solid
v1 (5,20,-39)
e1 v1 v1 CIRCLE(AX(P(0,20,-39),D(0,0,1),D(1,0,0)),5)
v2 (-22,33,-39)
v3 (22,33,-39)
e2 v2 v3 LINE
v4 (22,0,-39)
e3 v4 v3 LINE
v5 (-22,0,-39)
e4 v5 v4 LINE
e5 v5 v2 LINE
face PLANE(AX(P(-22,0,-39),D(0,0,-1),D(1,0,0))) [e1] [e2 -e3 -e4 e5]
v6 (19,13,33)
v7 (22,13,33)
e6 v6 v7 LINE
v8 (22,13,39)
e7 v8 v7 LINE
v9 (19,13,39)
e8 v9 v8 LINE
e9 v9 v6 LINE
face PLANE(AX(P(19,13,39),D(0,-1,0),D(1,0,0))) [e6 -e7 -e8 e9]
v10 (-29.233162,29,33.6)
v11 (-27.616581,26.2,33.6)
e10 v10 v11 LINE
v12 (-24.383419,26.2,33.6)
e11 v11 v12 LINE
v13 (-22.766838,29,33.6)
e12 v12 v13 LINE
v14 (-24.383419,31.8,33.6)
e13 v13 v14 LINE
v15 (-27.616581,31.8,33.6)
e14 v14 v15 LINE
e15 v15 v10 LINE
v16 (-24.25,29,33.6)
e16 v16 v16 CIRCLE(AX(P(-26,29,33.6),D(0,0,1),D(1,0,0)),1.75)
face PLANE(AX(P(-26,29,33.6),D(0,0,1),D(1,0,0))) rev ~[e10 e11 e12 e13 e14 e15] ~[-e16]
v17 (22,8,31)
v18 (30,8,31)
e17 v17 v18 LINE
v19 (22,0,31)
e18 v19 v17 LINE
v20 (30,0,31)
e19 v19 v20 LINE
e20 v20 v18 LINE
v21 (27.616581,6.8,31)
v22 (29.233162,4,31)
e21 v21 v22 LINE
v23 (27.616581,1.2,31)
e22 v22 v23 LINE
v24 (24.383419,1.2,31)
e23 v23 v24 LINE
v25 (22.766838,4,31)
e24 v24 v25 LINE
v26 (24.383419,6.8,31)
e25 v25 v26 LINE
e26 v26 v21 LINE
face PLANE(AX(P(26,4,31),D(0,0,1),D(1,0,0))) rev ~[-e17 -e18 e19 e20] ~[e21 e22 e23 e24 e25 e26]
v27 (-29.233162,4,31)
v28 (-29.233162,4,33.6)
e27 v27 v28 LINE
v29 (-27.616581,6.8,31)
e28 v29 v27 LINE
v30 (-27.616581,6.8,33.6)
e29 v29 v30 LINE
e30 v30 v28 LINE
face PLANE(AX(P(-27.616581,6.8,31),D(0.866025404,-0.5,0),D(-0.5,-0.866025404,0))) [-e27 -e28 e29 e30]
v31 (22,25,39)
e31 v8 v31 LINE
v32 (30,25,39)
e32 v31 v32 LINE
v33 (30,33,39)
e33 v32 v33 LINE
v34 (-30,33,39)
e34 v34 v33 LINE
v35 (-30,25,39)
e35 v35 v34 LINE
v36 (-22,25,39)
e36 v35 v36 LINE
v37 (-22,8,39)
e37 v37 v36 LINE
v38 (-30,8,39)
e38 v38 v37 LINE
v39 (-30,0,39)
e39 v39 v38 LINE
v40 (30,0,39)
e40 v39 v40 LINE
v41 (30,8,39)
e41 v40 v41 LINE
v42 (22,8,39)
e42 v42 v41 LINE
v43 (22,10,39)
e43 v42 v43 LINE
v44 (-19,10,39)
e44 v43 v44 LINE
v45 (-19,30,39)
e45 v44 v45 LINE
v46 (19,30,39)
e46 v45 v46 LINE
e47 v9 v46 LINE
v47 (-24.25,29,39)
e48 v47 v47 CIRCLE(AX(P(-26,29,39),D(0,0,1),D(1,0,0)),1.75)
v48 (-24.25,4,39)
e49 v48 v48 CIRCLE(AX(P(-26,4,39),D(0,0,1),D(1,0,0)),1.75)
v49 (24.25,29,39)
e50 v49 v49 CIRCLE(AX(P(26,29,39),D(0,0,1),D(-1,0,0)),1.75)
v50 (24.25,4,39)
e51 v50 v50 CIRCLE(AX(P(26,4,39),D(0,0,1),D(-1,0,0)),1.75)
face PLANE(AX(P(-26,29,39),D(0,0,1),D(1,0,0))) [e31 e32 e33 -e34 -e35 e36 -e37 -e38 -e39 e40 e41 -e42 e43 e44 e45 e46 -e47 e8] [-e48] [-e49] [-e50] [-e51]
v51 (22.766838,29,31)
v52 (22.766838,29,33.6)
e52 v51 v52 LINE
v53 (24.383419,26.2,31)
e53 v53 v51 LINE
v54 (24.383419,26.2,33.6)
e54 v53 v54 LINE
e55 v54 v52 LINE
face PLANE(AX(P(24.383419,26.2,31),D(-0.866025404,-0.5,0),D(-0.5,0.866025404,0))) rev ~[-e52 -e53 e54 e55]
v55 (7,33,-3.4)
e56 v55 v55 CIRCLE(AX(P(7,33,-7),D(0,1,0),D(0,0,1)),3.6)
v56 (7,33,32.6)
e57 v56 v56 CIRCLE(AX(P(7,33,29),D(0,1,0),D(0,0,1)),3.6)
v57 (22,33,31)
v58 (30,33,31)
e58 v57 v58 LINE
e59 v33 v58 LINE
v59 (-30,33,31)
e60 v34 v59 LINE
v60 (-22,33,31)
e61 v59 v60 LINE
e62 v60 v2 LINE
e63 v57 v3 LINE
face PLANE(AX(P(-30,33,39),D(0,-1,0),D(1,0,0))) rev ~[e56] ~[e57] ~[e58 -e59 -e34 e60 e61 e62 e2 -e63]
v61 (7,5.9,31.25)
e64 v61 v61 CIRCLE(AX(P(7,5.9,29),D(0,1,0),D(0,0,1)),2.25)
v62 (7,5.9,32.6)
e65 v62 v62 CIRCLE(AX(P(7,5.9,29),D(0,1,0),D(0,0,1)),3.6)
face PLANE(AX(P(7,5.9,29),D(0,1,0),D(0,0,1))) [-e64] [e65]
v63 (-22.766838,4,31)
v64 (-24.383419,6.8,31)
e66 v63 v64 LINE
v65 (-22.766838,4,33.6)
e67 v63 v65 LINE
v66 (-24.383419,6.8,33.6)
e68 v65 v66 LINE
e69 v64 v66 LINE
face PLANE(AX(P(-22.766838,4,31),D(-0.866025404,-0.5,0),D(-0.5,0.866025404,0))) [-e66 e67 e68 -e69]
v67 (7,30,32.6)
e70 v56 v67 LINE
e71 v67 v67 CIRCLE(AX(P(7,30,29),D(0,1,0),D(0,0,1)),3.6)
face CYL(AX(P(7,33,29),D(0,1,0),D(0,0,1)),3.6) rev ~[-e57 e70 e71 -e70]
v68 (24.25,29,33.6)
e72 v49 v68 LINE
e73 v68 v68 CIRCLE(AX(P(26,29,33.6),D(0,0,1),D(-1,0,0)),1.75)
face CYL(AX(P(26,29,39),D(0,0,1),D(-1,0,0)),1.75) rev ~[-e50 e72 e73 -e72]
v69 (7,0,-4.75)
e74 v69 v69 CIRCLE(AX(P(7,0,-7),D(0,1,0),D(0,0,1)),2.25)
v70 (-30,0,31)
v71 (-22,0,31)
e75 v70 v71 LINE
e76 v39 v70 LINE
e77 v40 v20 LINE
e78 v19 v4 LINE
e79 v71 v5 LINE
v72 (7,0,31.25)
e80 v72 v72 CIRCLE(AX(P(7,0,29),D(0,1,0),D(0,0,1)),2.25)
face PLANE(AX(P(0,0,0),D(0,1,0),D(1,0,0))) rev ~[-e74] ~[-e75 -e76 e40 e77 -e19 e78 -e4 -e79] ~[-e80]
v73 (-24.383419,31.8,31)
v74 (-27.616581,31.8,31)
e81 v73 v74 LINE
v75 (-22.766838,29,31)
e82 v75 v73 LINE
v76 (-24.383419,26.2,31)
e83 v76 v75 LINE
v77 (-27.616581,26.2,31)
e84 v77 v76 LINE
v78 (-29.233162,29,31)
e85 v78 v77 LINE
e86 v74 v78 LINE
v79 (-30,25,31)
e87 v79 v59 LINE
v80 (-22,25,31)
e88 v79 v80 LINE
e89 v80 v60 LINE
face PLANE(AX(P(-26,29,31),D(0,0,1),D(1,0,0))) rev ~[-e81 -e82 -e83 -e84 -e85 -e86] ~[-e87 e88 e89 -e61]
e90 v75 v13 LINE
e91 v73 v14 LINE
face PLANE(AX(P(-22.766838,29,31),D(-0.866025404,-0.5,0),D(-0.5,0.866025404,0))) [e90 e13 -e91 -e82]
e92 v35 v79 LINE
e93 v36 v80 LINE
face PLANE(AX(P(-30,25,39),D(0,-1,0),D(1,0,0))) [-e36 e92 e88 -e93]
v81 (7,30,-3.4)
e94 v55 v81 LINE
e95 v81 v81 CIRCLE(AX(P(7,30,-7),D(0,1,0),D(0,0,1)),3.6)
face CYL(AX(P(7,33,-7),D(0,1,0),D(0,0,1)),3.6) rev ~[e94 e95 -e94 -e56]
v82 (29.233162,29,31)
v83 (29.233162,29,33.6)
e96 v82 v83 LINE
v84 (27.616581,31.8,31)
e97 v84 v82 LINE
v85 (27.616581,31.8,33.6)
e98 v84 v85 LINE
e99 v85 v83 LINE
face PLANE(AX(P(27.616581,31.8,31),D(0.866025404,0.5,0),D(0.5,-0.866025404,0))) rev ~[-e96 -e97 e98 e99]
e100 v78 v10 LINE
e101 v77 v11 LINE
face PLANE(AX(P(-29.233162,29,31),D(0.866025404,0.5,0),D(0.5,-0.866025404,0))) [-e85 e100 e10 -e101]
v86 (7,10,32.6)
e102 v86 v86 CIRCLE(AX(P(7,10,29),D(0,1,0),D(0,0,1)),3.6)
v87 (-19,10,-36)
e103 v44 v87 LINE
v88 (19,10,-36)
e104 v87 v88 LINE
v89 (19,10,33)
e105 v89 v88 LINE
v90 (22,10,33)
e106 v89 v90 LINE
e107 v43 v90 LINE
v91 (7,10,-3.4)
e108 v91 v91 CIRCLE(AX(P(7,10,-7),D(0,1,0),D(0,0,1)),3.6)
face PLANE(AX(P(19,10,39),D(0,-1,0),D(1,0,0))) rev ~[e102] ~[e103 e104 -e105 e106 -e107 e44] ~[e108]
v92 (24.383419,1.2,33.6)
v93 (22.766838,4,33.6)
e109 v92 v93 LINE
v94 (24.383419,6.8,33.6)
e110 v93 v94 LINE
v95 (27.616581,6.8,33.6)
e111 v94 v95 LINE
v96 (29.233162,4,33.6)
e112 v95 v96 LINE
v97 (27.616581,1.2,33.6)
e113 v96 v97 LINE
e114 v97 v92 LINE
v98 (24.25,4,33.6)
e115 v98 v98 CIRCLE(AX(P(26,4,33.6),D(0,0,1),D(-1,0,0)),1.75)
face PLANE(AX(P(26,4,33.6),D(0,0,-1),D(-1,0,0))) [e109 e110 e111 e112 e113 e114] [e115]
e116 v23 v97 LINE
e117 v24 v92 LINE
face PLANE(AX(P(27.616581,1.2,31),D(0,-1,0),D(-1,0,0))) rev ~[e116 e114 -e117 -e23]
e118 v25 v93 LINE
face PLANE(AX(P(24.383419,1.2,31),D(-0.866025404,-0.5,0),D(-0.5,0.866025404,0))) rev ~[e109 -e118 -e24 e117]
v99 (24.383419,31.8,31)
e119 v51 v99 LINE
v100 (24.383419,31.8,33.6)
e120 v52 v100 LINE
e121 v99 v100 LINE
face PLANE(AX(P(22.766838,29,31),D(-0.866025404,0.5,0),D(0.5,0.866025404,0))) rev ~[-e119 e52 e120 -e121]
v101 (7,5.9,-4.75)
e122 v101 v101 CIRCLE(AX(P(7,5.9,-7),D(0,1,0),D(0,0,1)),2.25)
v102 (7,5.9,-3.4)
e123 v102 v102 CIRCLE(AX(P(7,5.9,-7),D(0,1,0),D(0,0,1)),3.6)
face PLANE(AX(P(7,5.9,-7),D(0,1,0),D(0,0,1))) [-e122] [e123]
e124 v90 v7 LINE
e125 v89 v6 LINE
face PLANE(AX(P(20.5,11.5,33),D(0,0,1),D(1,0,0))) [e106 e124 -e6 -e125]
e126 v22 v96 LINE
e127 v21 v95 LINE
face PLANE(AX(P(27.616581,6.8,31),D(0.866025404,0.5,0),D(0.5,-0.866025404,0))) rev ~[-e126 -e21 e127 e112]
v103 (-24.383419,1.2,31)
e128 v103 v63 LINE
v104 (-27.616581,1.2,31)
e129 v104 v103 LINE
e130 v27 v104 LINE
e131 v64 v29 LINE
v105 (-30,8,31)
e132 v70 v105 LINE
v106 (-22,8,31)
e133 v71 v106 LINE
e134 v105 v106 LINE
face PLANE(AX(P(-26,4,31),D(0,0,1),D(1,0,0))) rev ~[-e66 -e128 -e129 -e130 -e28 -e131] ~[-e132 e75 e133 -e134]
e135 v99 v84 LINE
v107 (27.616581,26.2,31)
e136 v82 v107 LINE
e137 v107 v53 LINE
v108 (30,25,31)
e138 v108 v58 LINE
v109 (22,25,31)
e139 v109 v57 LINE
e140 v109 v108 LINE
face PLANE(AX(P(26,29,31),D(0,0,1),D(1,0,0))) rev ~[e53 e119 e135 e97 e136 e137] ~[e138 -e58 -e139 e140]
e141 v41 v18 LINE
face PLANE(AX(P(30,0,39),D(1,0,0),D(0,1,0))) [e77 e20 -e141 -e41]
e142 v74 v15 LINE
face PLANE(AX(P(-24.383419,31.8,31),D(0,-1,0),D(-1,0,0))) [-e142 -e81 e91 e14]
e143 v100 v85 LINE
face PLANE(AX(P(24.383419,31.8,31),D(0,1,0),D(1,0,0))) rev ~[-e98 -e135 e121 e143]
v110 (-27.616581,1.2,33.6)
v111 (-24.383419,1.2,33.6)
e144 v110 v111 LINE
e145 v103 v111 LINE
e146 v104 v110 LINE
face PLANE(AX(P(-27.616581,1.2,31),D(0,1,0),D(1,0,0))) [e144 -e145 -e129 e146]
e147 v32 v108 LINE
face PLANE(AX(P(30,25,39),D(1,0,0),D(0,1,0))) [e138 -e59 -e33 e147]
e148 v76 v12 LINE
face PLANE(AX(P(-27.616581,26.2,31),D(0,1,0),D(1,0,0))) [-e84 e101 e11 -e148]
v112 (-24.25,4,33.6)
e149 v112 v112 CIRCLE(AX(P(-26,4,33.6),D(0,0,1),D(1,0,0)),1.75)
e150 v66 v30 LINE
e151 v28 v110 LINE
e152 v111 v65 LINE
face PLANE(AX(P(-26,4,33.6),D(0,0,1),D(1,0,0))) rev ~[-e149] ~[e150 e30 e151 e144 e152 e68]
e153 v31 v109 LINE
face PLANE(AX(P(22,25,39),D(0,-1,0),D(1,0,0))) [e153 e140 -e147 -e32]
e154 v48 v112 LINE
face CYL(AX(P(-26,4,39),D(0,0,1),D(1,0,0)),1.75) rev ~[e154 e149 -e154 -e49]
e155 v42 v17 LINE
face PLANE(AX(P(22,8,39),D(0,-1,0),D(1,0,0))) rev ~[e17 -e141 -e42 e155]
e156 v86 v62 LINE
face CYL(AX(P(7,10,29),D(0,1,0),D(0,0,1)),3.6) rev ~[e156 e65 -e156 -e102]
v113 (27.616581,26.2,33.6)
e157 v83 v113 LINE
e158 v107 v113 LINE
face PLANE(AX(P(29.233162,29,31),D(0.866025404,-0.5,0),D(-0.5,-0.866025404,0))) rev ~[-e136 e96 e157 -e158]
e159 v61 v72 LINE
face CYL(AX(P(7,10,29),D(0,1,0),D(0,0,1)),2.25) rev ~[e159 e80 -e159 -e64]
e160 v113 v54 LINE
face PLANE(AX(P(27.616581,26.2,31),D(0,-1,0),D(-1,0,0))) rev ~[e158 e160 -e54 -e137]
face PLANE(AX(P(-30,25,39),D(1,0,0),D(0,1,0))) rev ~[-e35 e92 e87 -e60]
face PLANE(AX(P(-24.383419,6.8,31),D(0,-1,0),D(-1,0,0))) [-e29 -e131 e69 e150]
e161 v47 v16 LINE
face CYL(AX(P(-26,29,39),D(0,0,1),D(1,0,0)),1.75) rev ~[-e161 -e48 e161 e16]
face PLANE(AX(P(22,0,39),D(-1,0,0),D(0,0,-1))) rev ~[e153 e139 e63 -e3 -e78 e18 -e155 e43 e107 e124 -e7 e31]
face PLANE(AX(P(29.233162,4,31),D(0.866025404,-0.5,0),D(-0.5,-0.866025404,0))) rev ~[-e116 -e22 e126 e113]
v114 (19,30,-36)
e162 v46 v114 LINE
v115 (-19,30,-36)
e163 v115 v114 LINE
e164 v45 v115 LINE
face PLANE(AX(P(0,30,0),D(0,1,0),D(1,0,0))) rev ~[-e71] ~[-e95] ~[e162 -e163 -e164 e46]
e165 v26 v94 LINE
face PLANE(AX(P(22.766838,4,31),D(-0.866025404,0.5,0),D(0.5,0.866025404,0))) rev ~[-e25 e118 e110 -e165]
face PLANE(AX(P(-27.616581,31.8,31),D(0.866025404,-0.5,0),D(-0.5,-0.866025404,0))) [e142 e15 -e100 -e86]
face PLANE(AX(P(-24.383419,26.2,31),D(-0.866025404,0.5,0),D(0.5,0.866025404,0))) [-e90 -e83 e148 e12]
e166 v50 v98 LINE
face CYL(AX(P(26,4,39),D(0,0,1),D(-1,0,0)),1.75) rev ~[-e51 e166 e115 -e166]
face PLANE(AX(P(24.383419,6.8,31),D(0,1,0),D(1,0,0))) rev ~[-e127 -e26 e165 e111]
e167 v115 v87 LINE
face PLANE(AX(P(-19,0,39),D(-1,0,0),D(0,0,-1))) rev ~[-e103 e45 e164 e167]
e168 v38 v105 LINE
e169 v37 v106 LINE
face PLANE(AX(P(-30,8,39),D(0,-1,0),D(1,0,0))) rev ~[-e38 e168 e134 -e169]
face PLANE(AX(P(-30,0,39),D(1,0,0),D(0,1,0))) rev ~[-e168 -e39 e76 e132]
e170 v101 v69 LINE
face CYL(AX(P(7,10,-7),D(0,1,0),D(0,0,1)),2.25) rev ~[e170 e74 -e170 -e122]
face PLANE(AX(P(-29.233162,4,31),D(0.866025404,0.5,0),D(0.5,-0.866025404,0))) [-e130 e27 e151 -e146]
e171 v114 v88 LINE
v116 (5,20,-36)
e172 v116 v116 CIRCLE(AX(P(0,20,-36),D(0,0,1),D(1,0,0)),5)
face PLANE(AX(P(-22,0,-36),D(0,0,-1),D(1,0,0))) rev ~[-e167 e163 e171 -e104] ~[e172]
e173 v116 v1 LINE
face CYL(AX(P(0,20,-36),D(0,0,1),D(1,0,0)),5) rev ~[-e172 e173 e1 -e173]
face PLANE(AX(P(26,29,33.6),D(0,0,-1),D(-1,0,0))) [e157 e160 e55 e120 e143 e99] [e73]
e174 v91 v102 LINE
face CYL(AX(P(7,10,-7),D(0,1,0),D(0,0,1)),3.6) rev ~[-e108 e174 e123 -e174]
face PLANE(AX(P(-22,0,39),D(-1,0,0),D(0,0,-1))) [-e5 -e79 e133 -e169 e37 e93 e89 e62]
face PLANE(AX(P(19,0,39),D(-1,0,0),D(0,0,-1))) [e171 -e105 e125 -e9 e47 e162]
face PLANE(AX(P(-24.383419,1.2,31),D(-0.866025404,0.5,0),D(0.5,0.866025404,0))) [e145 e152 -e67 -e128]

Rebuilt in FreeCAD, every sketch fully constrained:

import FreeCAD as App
import Part
import Sketcher

V = App.Vector
Q = App.Units.Quantity


def faces_at(feature, points):
    """Names of the faces that lie closest to the given points."""
    faces = feature.Shape.Faces
    near = lambda p: min(range(len(faces)), key=lambda i: faces[i].distToShape(Part.Vertex(*p))[0])
    return sorted({f"Face{near(p) + 1}" for p in points})

doc = App.newDocument("Part")
body = doc.addObject("PartDesign::Body", "Body")

# Sketch on XZ plane
sketch1 = body.newObject("Sketcher::SketchObject", "Sketch")
sketch1.AttachmentSupport = (doc.getObject("XZ_Plane"), [""])
sketch1.MapMode = "FlatFace"
sketch1.addGeometry(Part.LineSegment(V(-22, -39, 0), V(-22, 39, 0)), False)
sketch1.addGeometry(Part.LineSegment(V(-22, 39, 0), V(22, 39, 0)), False)
sketch1.addGeometry(Part.LineSegment(V(22, 39, 0), V(22, -39, 0)), False)
sketch1.addGeometry(Part.LineSegment(V(22, -39, 0), V(-22, -39, 0)), False)
sketch1.addConstraint(Sketcher.Constraint("Coincident", 0, 2, 1, 1))
sketch1.addConstraint(Sketcher.Constraint("Coincident", 1, 2, 2, 1))
sketch1.addConstraint(Sketcher.Constraint("Coincident", 2, 2, 3, 1))
sketch1.addConstraint(Sketcher.Constraint("Coincident", 3, 2, 0, 1))
sketch1.addConstraint(Sketcher.Constraint("Vertical", 0))
sketch1.addConstraint(Sketcher.Constraint("Horizontal", 1))
sketch1.addConstraint(Sketcher.Constraint("Vertical", 2))
sketch1.addConstraint(Sketcher.Constraint("Horizontal", 3))
sketch1.addConstraint(Sketcher.Constraint("Symmetric", 0, 2, 2, 2, -1, 1))
sketch1.addConstraint(Sketcher.Constraint("DistanceX", 1, 1, 1, 2, 44.0))
sketch1.addConstraint(Sketcher.Constraint("DistanceY", 0, 1, 0, 2, 78.0))
pad1 = body.newObject("PartDesign::Pad", "Pad")
pad1.Profile = sketch1
pad1.Length = 33
pad1.Reversed = True
doc.recompute()

thickness = body.newObject("PartDesign::Thickness", "Thickness")
thickness.Base = (pad1, faces_at(pad1, [(0, 16.5, 39)]))
thickness.Value = 3
thickness.Reversed = True
thickness.Join = "Intersection"

# Sketch on XZ plane
sketch2 = body.newObject("Sketcher::SketchObject", "Sketch001")
sketch2.AttachmentSupport = (doc.getObject("XZ_Plane"), [""])
sketch2.MapMode = "FlatFace"
sketch2.AttachmentOffset = App.Placement(V(0, 0, -3), App.Rotation())
sketch2.addGeometry(Part.LineSegment(V(19, 39, 0), V(-19, 39, 0)), False)
sketch2.addGeometry(Part.LineSegment(V(-19, 39, 0), V(-19, -36, 0)), False)
sketch2.addGeometry(Part.LineSegment(V(-19, -36, 0), V(19, -36, 0)), False)
sketch2.addGeometry(Part.LineSegment(V(19, -36, 0), V(19, 39, 0)), False)
sketch2.addConstraint(Sketcher.Constraint("Coincident", 0, 2, 1, 1))
sketch2.addConstraint(Sketcher.Constraint("Coincident", 1, 2, 2, 1))
sketch2.addConstraint(Sketcher.Constraint("Coincident", 2, 2, 3, 1))
sketch2.addConstraint(Sketcher.Constraint("Coincident", 3, 2, 0, 1))
sketch2.addConstraint(Sketcher.Constraint("Horizontal", 0))
sketch2.addConstraint(Sketcher.Constraint("Vertical", 1))
sketch2.addConstraint(Sketcher.Constraint("Horizontal", 2))
sketch2.addConstraint(Sketcher.Constraint("Vertical", 3))
sketch2.addConstraint(Sketcher.Constraint("DistanceX", 0, 2, 0, 1, 38.0))
sketch2.addConstraint(Sketcher.Constraint("DistanceY", 1, 2, 1, 1, 75.0))
sketch2.addConstraint(Sketcher.Constraint("DistanceX", 0, 2, -1, 1, 19.0))
sketch2.addConstraint(Sketcher.Constraint("DistanceY", -1, 1, 0, 2, 39.0))
pad2 = body.newObject("PartDesign::Pad", "Pad001")
pad2.Profile = sketch2
pad2.Length = 7
pad2.Reversed = True

# Sketch on XZ plane
sketch3 = body.newObject("Sketcher::SketchObject", "Sketch002")
sketch3.AttachmentSupport = (doc.getObject("XZ_Plane"), [""])
sketch3.MapMode = "FlatFace"
sketch3.AttachmentOffset = App.Placement(V(0, 0, -10), App.Rotation())
sketch3.addGeometry(Part.Circle(V(7, -7, 0), V(0, 0, 1), 3.6), False)
sketch3.addGeometry(Part.Circle(V(7, 29, 0), V(0, 0, 1), 3.6), False)
sketch3.addConstraint(Sketcher.Constraint("Equal", 0, 1))
sketch3.addConstraint(Sketcher.Constraint("Vertical", 0, 3, 1, 3))
sketch3.addConstraint(Sketcher.Constraint("Diameter", 0, 7.2))
sketch3.addConstraint(Sketcher.Constraint("DistanceX", -1, 1, 0, 3, 7.0))
sketch3.addConstraint(Sketcher.Constraint("DistanceY", 0, 3, -1, 1, 7.0))
sketch3.addConstraint(Sketcher.Constraint("DistanceY", -1, 1, 1, 3, 29.0))
pocket1 = body.newObject("PartDesign::Pocket", "Pocket")
pocket1.Profile = sketch3
pocket1.Length = 4.1
pocket1.Reversed = True

# Sketch on XZ plane
sketch4 = body.newObject("Sketcher::SketchObject", "Sketch003")
sketch4.AttachmentSupport = (doc.getObject("XZ_Plane"), [""])
sketch4.MapMode = "FlatFace"
sketch4.AttachmentOffset = App.Placement(V(0, 0, -10), App.Rotation())
sketch4.addGeometry(Part.Circle(V(7, -7, 0), V(0, 0, 1), 2.2), False)
sketch4.addConstraint(Sketcher.Constraint("Diameter", 0, 4.5))
sketch4.addConstraint(Sketcher.Constraint("DistanceX", -1, 1, 0, 3, 7.0))
sketch4.addConstraint(Sketcher.Constraint("DistanceY", 0, 3, -1, 1, 7.0))
pocket2 = body.newObject("PartDesign::Pocket", "Pocket001")
pocket2.Profile = sketch4
pocket2.Length = 10
pocket2.Reversed = True

# Sketch on XZ plane
sketch5 = body.newObject("Sketcher::SketchObject", "Sketch004")
sketch5.AttachmentSupport = (doc.getObject("XZ_Plane"), [""])
sketch5.MapMode = "FlatFace"
sketch5.AttachmentOffset = App.Placement(V(0, 0, -10), App.Rotation())
sketch5.addGeometry(Part.Circle(V(7, 29, 0), V(0, 0, 1), 2.2), False)
sketch5.addConstraint(Sketcher.Constraint("Diameter", 0, 4.5))
sketch5.addConstraint(Sketcher.Constraint("DistanceX", -1, 1, 0, 3, 7.0))
sketch5.addConstraint(Sketcher.Constraint("DistanceY", -1, 1, 0, 3, 29.0))
pocket3 = body.newObject("PartDesign::Pocket", "Pocket002")
pocket3.Profile = sketch5
pocket3.Length = 10
pocket3.Reversed = True

# Sketch on XY plane
sketch6 = body.newObject("Sketcher::SketchObject", "Sketch005")
sketch6.AttachmentSupport = (doc.getObject("XY_Plane"), [""])
sketch6.MapMode = "FlatFace"
sketch6.AttachmentOffset = App.Placement(V(0, 0, 39), App.Rotation())
sketch6.addGeometry(Part.LineSegment(V(19, 13, 0), V(19, 10, 0)), False)
sketch6.addGeometry(Part.LineSegment(V(19, 10, 0), V(22, 10, 0)), False)
sketch6.addGeometry(Part.LineSegment(V(22, 10, 0), V(22, 13, 0)), False)
sketch6.addGeometry(Part.LineSegment(V(22, 13, 0), V(19, 13, 0)), False)
sketch6.addConstraint(Sketcher.Constraint("Coincident", 0, 2, 1, 1))
sketch6.addConstraint(Sketcher.Constraint("Coincident", 1, 2, 2, 1))
sketch6.addConstraint(Sketcher.Constraint("Coincident", 2, 2, 3, 1))
sketch6.addConstraint(Sketcher.Constraint("Coincident", 3, 2, 0, 1))
sketch6.addConstraint(Sketcher.Constraint("Vertical", 0))
sketch6.addConstraint(Sketcher.Constraint("Horizontal", 1))
sketch6.addConstraint(Sketcher.Constraint("Vertical", 2))
sketch6.addConstraint(Sketcher.Constraint("Horizontal", 3))
sketch6.addConstraint(Sketcher.Constraint("Equal", 3, 0))
sketch6.addConstraint(Sketcher.Constraint("DistanceX", 1, 1, 1, 2, 3.0))
sketch6.addConstraint(Sketcher.Constraint("DistanceX", -1, 1, 0, 2, 19.0))
sketch6.addConstraint(Sketcher.Constraint("DistanceY", -1, 1, 0, 2, 10.0))
pocket4 = body.newObject("PartDesign::Pocket", "Pocket003")
pocket4.Profile = sketch6
pocket4.Length = 6

# Sketch on XY plane
sketch7 = body.newObject("Sketcher::SketchObject", "Sketch006")
sketch7.AttachmentSupport = (doc.getObject("XY_Plane"), [""])
sketch7.MapMode = "FlatFace"
sketch7.AttachmentOffset = App.Placement(V(0, 0, 39), App.Rotation())
sketch7.addGeometry(Part.LineSegment(V(-30, 33, 0), V(-30, 25, 0)), False)
sketch7.addGeometry(Part.LineSegment(V(-30, 25, 0), V(-22, 25, 0)), False)
sketch7.addGeometry(Part.LineSegment(V(-22, 25, 0), V(-22, 33, 0)), False)
sketch7.addGeometry(Part.LineSegment(V(-22, 33, 0), V(-30, 33, 0)), False)
sketch7.addGeometry(Part.Circle(V(-26, 29, 0), V(0, 0, 1), 1.8), False)
sketch7.addGeometry(Part.LineSegment(V(-30, 8, 0), V(-30, 0, 0)), False)
sketch7.addGeometry(Part.LineSegment(V(-30, 0, 0), V(-22, 0, 0)), False)
sketch7.addGeometry(Part.LineSegment(V(-22, 0, 0), V(-22, 8, 0)), False)
sketch7.addGeometry(Part.LineSegment(V(-22, 8, 0), V(-30, 8, 0)), False)
sketch7.addGeometry(Part.Circle(V(-26, 4, 0), V(0, 0, 1), 1.8), False)
sketch7.addGeometry(Part.LineSegment(V(22, 8, 0), V(22, 0, 0)), False)
sketch7.addGeometry(Part.LineSegment(V(22, 0, 0), V(30, 0, 0)), False)
sketch7.addGeometry(Part.LineSegment(V(30, 0, 0), V(30, 8, 0)), False)
sketch7.addGeometry(Part.LineSegment(V(30, 8, 0), V(22, 8, 0)), False)
sketch7.addGeometry(Part.Circle(V(26, 4, 0), V(0, 0, 1), 1.8), False)
sketch7.addGeometry(Part.LineSegment(V(22, 33, 0), V(22, 25, 0)), False)
sketch7.addGeometry(Part.LineSegment(V(22, 25, 0), V(30, 25, 0)), False)
sketch7.addGeometry(Part.LineSegment(V(30, 25, 0), V(30, 33, 0)), False)
sketch7.addGeometry(Part.LineSegment(V(30, 33, 0), V(22, 33, 0)), False)
sketch7.addGeometry(Part.Circle(V(26, 29, 0), V(0, 0, 1), 1.8), False)
sketch7.addConstraint(Sketcher.Constraint("Coincident", 0, 2, 1, 1))
sketch7.addConstraint(Sketcher.Constraint("Coincident", 1, 2, 2, 1))
sketch7.addConstraint(Sketcher.Constraint("Coincident", 2, 2, 3, 1))
sketch7.addConstraint(Sketcher.Constraint("Coincident", 3, 2, 0, 1))
sketch7.addConstraint(Sketcher.Constraint("Coincident", 5, 2, 6, 1))
sketch7.addConstraint(Sketcher.Constraint("Coincident", 6, 2, 7, 1))
sketch7.addConstraint(Sketcher.Constraint("Coincident", 7, 2, 8, 1))
sketch7.addConstraint(Sketcher.Constraint("Coincident", 8, 2, 5, 1))
sketch7.addConstraint(Sketcher.Constraint("Coincident", 10, 2, 11, 1))
sketch7.addConstraint(Sketcher.Constraint("Coincident", 11, 2, 12, 1))
sketch7.addConstraint(Sketcher.Constraint("Coincident", 12, 2, 13, 1))
sketch7.addConstraint(Sketcher.Constraint("Coincident", 13, 2, 10, 1))
sketch7.addConstraint(Sketcher.Constraint("Coincident", 15, 2, 16, 1))
sketch7.addConstraint(Sketcher.Constraint("Coincident", 16, 2, 17, 1))
sketch7.addConstraint(Sketcher.Constraint("Coincident", 17, 2, 18, 1))
sketch7.addConstraint(Sketcher.Constraint("Coincident", 18, 2, 15, 1))
sketch7.addConstraint(Sketcher.Constraint("Vertical", 0))
sketch7.addConstraint(Sketcher.Constraint("Horizontal", 1))
sketch7.addConstraint(Sketcher.Constraint("Vertical", 2))
sketch7.addConstraint(Sketcher.Constraint("Horizontal", 3))
sketch7.addConstraint(Sketcher.Constraint("Vertical", 5))
sketch7.addConstraint(Sketcher.Constraint("Horizontal", 6))
sketch7.addConstraint(Sketcher.Constraint("Vertical", 7))
sketch7.addConstraint(Sketcher.Constraint("Horizontal", 8))
sketch7.addConstraint(Sketcher.Constraint("Vertical", 10))
sketch7.addConstraint(Sketcher.Constraint("Horizontal", 11))
sketch7.addConstraint(Sketcher.Constraint("Vertical", 12))
sketch7.addConstraint(Sketcher.Constraint("Horizontal", 13))
sketch7.addConstraint(Sketcher.Constraint("Vertical", 15))
sketch7.addConstraint(Sketcher.Constraint("Horizontal", 16))
sketch7.addConstraint(Sketcher.Constraint("Vertical", 17))
sketch7.addConstraint(Sketcher.Constraint("Horizontal", 18))
sketch7.addConstraint(Sketcher.Constraint("Equal", 4, 9))
sketch7.addConstraint(Sketcher.Constraint("Equal", 9, 14))
sketch7.addConstraint(Sketcher.Constraint("Equal", 14, 19))
sketch7.addConstraint(Sketcher.Constraint("Symmetric", 6, 2, 10, 2, -1, 1))
sketch7.addConstraint(Sketcher.Constraint("Symmetric", 9, 3, 14, 3, -2))
sketch7.addConstraint(Sketcher.Constraint("Symmetric", 4, 3, 19, 3, -2))
sketch7.addConstraint(Sketcher.Constraint("Symmetric", 5, 2, 11, 2, -2))
sketch7.addConstraint(Sketcher.Constraint("Symmetric", 1, 2, 15, 2, -2))
sketch7.addConstraint(Sketcher.Constraint("Symmetric", 3, 2, 17, 2, -2))
sketch7.addConstraint(Sketcher.Constraint("Horizontal", 8, 2, 12, 2))
sketch7.addConstraint(Sketcher.Constraint("Vertical", 4, 3, 9, 3))
sketch7.addConstraint(Sketcher.Constraint("Vertical", 3, 2, 5, 2))
sketch7.addConstraint(Sketcher.Constraint("Vertical", 2, 2, 6, 2))
sketch7.addConstraint(Sketcher.Constraint("Equal", 18, 0))
sketch7.addConstraint(Sketcher.Constraint("Equal", 2, 5))
sketch7.addConstraint(Sketcher.Constraint("Diameter", 4, 3.5))
sketch7.addConstraint(Sketcher.Constraint("DistanceX", 1, 1, 1, 2, 8.0))
sketch7.addConstraint(Sketcher.Constraint("DistanceX", 4, 3, -1, 1, 26.0))
sketch7.addConstraint(Sketcher.Constraint("DistanceY", -1, 1, 4, 3, 29.0))
sketch7.addConstraint(Sketcher.Constraint("DistanceY", -1, 1, 9, 3, 4.0))
sketch7.addConstraint(Sketcher.Constraint("DistanceX", 0, 2, -1, 1, 30.0))
sketch7.addConstraint(Sketcher.Constraint("DistanceY", -1, 1, 0, 2, 25.0))
pad3 = body.newObject("PartDesign::Pad", "Pad002")
pad3.Profile = sketch7
pad3.Length = 8
pad3.Reversed = True

# Sketch on XY plane
sketch8 = body.newObject("Sketcher::SketchObject", "Sketch007")
sketch8.AttachmentSupport = (doc.getObject("XY_Plane"), [""])
sketch8.MapMode = "FlatFace"
sketch8.AttachmentOffset = App.Placement(V(0, 0, 31), App.Rotation())
sketch8.addGeometry(Part.LineSegment(V(-29.2, 4, 0), V(-27.6, 6.8, 0)), False)
sketch8.addGeometry(Part.LineSegment(V(-27.6, 6.8, 0), V(-24.4, 6.8, 0)), False)
sketch8.addGeometry(Part.LineSegment(V(-24.4, 6.8, 0), V(-22.8, 4, 0)), False)
sketch8.addGeometry(Part.LineSegment(V(-22.8, 4, 0), V(-24.4, 1.2, 0)), False)
sketch8.addGeometry(Part.LineSegment(V(-24.4, 1.2, 0), V(-27.6, 1.2, 0)), False)
sketch8.addGeometry(Part.LineSegment(V(-27.6, 1.2, 0), V(-29.2, 4, 0)), False)
sketch8.addGeometry(Part.LineSegment(V(22.8, 29, 0), V(24.4, 31.8, 0)), False)
sketch8.addGeometry(Part.LineSegment(V(24.4, 31.8, 0), V(27.6, 31.8, 0)), False)
sketch8.addGeometry(Part.LineSegment(V(27.6, 31.8, 0), V(29.2, 29, 0)), False)
sketch8.addGeometry(Part.LineSegment(V(29.2, 29, 0), V(27.6, 26.2, 0)), False)
sketch8.addGeometry(Part.LineSegment(V(27.6, 26.2, 0), V(24.4, 26.2, 0)), False)
sketch8.addGeometry(Part.LineSegment(V(24.4, 26.2, 0), V(22.8, 29, 0)), False)
sketch8.addGeometry(Part.LineSegment(V(29.2, 4, 0), V(27.6, 1.2, 0)), False)
sketch8.addGeometry(Part.LineSegment(V(27.6, 1.2, 0), V(24.4, 1.2, 0)), False)
sketch8.addGeometry(Part.LineSegment(V(24.4, 1.2, 0), V(22.8, 4, 0)), False)
sketch8.addGeometry(Part.LineSegment(V(22.8, 4, 0), V(24.4, 6.8, 0)), False)
sketch8.addGeometry(Part.LineSegment(V(24.4, 6.8, 0), V(27.6, 6.8, 0)), False)
sketch8.addGeometry(Part.LineSegment(V(27.6, 6.8, 0), V(29.2, 4, 0)), False)
sketch8.addGeometry(Part.LineSegment(V(-22.8, 29, 0), V(-24.4, 26.2, 0)), False)
sketch8.addGeometry(Part.LineSegment(V(-24.4, 26.2, 0), V(-27.6, 26.2, 0)), False)
sketch8.addGeometry(Part.LineSegment(V(-27.6, 26.2, 0), V(-29.2, 29, 0)), False)
sketch8.addGeometry(Part.LineSegment(V(-29.2, 29, 0), V(-27.6, 31.8, 0)), False)
sketch8.addGeometry(Part.LineSegment(V(-27.6, 31.8, 0), V(-24.4, 31.8, 0)), False)
sketch8.addGeometry(Part.LineSegment(V(-24.4, 31.8, 0), V(-22.8, 29, 0)), False)
sketch8.addConstraint(Sketcher.Constraint("Coincident", 0, 2, 1, 1))
sketch8.addConstraint(Sketcher.Constraint("Coincident", 1, 2, 2, 1))
sketch8.addConstraint(Sketcher.Constraint("Coincident", 2, 2, 3, 1))
sketch8.addConstraint(Sketcher.Constraint("Coincident", 3, 2, 4, 1))
sketch8.addConstraint(Sketcher.Constraint("Coincident", 4, 2, 5, 1))
sketch8.addConstraint(Sketcher.Constraint("Coincident", 5, 2, 0, 1))
sketch8.addConstraint(Sketcher.Constraint("Coincident", 6, 2, 7, 1))
sketch8.addConstraint(Sketcher.Constraint("Coincident", 7, 2, 8, 1))
sketch8.addConstraint(Sketcher.Constraint("Coincident", 8, 2, 9, 1))
sketch8.addConstraint(Sketcher.Constraint("Coincident", 9, 2, 10, 1))
sketch8.addConstraint(Sketcher.Constraint("Coincident", 10, 2, 11, 1))
sketch8.addConstraint(Sketcher.Constraint("Coincident", 11, 2, 6, 1))
sketch8.addConstraint(Sketcher.Constraint("Coincident", 12, 2, 13, 1))
sketch8.addConstraint(Sketcher.Constraint("Coincident", 13, 2, 14, 1))
sketch8.addConstraint(Sketcher.Constraint("Coincident", 14, 2, 15, 1))
sketch8.addConstraint(Sketcher.Constraint("Coincident", 15, 2, 16, 1))
sketch8.addConstraint(Sketcher.Constraint("Coincident", 16, 2, 17, 1))
sketch8.addConstraint(Sketcher.Constraint("Coincident", 17, 2, 12, 1))
sketch8.addConstraint(Sketcher.Constraint("Coincident", 18, 2, 19, 1))
sketch8.addConstraint(Sketcher.Constraint("Coincident", 19, 2, 20, 1))
sketch8.addConstraint(Sketcher.Constraint("Coincident", 20, 2, 21, 1))
sketch8.addConstraint(Sketcher.Constraint("Coincident", 21, 2, 22, 1))
sketch8.addConstraint(Sketcher.Constraint("Coincident", 22, 2, 23, 1))
sketch8.addConstraint(Sketcher.Constraint("Coincident", 23, 2, 18, 1))
sketch8.addConstraint(Sketcher.Constraint("Horizontal", 1))
sketch8.addConstraint(Sketcher.Constraint("Horizontal", 4))
sketch8.addConstraint(Sketcher.Constraint("Horizontal", 7))
sketch8.addConstraint(Sketcher.Constraint("Horizontal", 10))
sketch8.addConstraint(Sketcher.Constraint("Horizontal", 13))
sketch8.addConstraint(Sketcher.Constraint("Horizontal", 16))
sketch8.addConstraint(Sketcher.Constraint("Horizontal", 19))
sketch8.addConstraint(Sketcher.Constraint("Horizontal", 22))
sketch8.addConstraint(Sketcher.Constraint("Symmetric", 4, 2, 12, 2, -2))
sketch8.addConstraint(Sketcher.Constraint("Symmetric", 2, 2, 14, 2, -2))
sketch8.addConstraint(Sketcher.Constraint("Symmetric", 1, 2, 15, 2, -2))
sketch8.addConstraint(Sketcher.Constraint("Symmetric", 5, 2, 17, 2, -2))
sketch8.addConstraint(Sketcher.Constraint("Symmetric", 10, 2, 18, 2, -2))
sketch8.addConstraint(Sketcher.Constraint("Symmetric", 8, 2, 20, 2, -2))
sketch8.addConstraint(Sketcher.Constraint("Symmetric", 7, 2, 21, 2, -2))
sketch8.addConstraint(Sketcher.Constraint("Symmetric", 11, 2, 23, 2, -2))
sketch8.addConstraint(Sketcher.Constraint("Parallel", 0, 3))
sketch8.addConstraint(Sketcher.Constraint("Parallel", 2, 5))
sketch8.addConstraint(Sketcher.Constraint("Parallel", 3, 6))
sketch8.addConstraint(Sketcher.Constraint("Parallel", 5, 8))
sketch8.addConstraint(Sketcher.Constraint("Parallel", 6, 9))
sketch8.addConstraint(Sketcher.Constraint("Parallel", 8, 11))
sketch8.addConstraint(Sketcher.Constraint("Parallel", 9, 12))
sketch8.addConstraint(Sketcher.Constraint("Parallel", 11, 14))
sketch8.addConstraint(Sketcher.Constraint("Parallel", 14, 17))
sketch8.addConstraint(Sketcher.Constraint("Parallel", 17, 20))
sketch8.addConstraint(Sketcher.Constraint("Parallel", 20, 23))
sketch8.addConstraint(Sketcher.Constraint("Horizontal", 2, 2, 5, 2))
sketch8.addConstraint(Sketcher.Constraint("Horizontal", 8, 2, 11, 2))
sketch8.addConstraint(Sketcher.Constraint("Vertical", 1, 2, 3, 2))
sketch8.addConstraint(Sketcher.Constraint("Vertical", 7, 2, 9, 2))
sketch8.addConstraint(Sketcher.Constraint("Vertical", 9, 2, 12, 2))
sketch8.addConstraint(Sketcher.Constraint("Vertical", 10, 2, 13, 2))
sketch8.addConstraint(Sketcher.Constraint("Vertical", 11, 2, 14, 2))
sketch8.addConstraint(Sketcher.Constraint("Angle", 0, Q("60 deg")))
sketch8.addConstraint(Sketcher.Constraint("DistanceY", -1, 1, 2, 2, 4.0))
sketch8.addConstraint(Sketcher.Constraint("DistanceY", -1, 1, 8, 2, 29.0))
sketch8.addConstraint(Sketcher.Constraint("DistanceX", 0, 2, 6, 2, 52.0))
sketch8.addConstraint(Sketcher.Constraint("DistanceY", -1, 1, 0, 2, 6.8))
sketch8.addConstraint(Sketcher.Constraint("DistanceX", 1, 1, 1, 2, 3.233162))
pocket5 = body.newObject("PartDesign::Pocket", "Pocket004")
pocket5.Profile = sketch8
pocket5.Length = 2.6
pocket5.Reversed = True

# Sketch on XY plane
sketch9 = body.newObject("Sketcher::SketchObject", "Sketch008")
sketch9.AttachmentSupport = (doc.getObject("XY_Plane"), [""])
sketch9.MapMode = "FlatFace"
sketch9.AttachmentOffset = App.Placement(V(0, 0, -36), App.Rotation())
sketch9.addGeometry(Part.Circle(V(0, 20, 0), V(0, 0, 1), 5), False)
sketch9.addConstraint(Sketcher.Constraint("PointOnObject", 0, 3, -2))
sketch9.addConstraint(Sketcher.Constraint("Diameter", 0, 10.0))
sketch9.addConstraint(Sketcher.Constraint("DistanceY", -1, 1, 0, 3, 20.0))
pocket6 = body.newObject("PartDesign::Pocket", "Pocket005")
pocket6.Profile = sketch9
pocket6.Type = "UpToFirst"

# Sketch on XZ plane
sketch10 = body.newObject("Sketcher::SketchObject", "Sketch009")
sketch10.AttachmentSupport = (doc.getObject("XZ_Plane"), [""])
sketch10.MapMode = "FlatFace"
sketch10.AttachmentOffset = App.Placement(V(0, 0, -33), App.Rotation())
sketch10.addGeometry(Part.Circle(V(7, -7, 0), V(0, 0, 1), 3.6), False)
sketch10.addConstraint(Sketcher.Constraint("Diameter", 0, 7.2))
sketch10.addConstraint(Sketcher.Constraint("DistanceX", -1, 1, 0, 3, 7.0))
sketch10.addConstraint(Sketcher.Constraint("DistanceY", 0, 3, -1, 1, 7.0))
pocket7 = body.newObject("PartDesign::Pocket", "Pocket006")
pocket7.Profile = sketch10
pocket7.Type = "UpToFirst"
pocket7.Reversed = True

# Sketch on XZ plane
sketch11 = body.newObject("Sketcher::SketchObject", "Sketch010")
sketch11.AttachmentSupport = (doc.getObject("XZ_Plane"), [""])
sketch11.MapMode = "FlatFace"
sketch11.AttachmentOffset = App.Placement(V(0, 0, -33), App.Rotation())
sketch11.addGeometry(Part.Circle(V(7, 29, 0), V(0, 0, 1), 3.6), False)
sketch11.addConstraint(Sketcher.Constraint("Diameter", 0, 7.2))
sketch11.addConstraint(Sketcher.Constraint("DistanceX", -1, 1, 0, 3, 7.0))
sketch11.addConstraint(Sketcher.Constraint("DistanceY", -1, 1, 0, 3, 29.0))
pocket8 = body.newObject("PartDesign::Pocket", "Pocket007")
pocket8.Profile = sketch11
pocket8.Type = "UpToFirst"
pocket8.Reversed = True

doc.recompute()
